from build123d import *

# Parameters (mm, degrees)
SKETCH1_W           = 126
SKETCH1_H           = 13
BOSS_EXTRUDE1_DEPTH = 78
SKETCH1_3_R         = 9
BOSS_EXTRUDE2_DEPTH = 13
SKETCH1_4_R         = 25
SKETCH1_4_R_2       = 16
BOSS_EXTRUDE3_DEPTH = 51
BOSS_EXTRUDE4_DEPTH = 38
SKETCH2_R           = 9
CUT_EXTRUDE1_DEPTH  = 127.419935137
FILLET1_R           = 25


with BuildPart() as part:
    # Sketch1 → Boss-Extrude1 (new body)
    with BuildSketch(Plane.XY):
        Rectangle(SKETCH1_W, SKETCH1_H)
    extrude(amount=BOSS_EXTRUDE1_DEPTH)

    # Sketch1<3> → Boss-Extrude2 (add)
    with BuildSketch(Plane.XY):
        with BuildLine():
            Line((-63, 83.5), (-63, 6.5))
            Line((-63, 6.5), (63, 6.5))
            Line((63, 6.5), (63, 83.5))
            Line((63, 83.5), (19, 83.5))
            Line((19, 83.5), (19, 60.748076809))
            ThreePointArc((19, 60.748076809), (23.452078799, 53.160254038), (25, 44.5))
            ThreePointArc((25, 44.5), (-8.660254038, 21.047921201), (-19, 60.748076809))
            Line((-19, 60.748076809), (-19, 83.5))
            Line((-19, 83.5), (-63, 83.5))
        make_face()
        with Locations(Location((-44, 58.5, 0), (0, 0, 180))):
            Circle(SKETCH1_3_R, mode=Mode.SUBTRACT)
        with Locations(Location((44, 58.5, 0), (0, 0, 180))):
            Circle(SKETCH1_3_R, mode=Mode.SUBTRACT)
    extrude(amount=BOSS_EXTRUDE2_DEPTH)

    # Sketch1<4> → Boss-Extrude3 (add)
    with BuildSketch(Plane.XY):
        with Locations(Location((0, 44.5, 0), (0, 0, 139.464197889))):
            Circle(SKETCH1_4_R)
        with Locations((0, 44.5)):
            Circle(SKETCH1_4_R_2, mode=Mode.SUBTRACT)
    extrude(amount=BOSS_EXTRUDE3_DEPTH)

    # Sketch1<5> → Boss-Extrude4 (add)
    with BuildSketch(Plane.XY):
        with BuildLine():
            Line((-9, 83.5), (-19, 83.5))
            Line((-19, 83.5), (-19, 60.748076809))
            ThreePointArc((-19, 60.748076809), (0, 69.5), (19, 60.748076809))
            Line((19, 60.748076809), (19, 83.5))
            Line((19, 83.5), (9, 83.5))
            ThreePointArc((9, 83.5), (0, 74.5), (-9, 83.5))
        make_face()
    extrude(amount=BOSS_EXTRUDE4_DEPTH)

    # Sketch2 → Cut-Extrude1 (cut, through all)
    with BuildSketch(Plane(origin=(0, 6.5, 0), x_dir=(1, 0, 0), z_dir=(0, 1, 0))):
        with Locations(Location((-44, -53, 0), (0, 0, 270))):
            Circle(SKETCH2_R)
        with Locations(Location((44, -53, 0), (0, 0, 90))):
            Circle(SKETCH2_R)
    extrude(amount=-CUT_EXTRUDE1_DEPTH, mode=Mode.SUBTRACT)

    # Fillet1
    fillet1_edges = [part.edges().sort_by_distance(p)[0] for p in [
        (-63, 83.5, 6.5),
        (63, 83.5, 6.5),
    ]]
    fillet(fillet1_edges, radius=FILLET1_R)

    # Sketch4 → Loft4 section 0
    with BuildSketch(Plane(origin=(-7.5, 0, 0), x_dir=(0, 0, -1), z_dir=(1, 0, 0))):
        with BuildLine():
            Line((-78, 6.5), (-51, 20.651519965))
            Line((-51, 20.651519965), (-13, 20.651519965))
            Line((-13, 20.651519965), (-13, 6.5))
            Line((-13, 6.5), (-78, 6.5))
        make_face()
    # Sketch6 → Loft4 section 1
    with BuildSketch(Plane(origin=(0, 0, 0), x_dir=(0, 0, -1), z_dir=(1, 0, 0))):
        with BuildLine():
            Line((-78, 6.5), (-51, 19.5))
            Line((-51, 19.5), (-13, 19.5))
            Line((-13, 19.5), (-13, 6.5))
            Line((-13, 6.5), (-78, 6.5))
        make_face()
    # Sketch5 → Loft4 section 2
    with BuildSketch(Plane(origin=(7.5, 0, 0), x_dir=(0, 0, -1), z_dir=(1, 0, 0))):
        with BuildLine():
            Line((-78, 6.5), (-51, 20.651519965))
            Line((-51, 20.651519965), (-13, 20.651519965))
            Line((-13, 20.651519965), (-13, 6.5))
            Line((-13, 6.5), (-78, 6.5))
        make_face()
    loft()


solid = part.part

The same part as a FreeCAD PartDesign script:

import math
import FreeCAD as App
import Part
import Sketcher
from FreeCAD import Vector
Q = App.Units.Quantity


def edges_at(feature, points):
    """Names of the edges that pass closest to the given points."""
    edges = feature.Shape.Edges
    near = lambda p: min(range(len(edges)), key=lambda i: edges[i].distToShape(Part.Vertex(*p))[0])
    return sorted({f"Edge{near(p) + 1}" for p in points})

doc = App.newDocument("Part")
body = doc.addObject("PartDesign::Body", "Body")

sketch1 = body.newObject("Sketcher::SketchObject", "Sketch")
sketch1.AttachmentSupport = (doc.getObject("XY_Plane"), [""])
sketch1.MapMode = "FlatFace"
sketch1.addGeometry([
    Part.LineSegment(Vector(-63, 6, 0), Vector(-63, -6, 0)),
    Part.LineSegment(Vector(-63, -6, 0), Vector(63, -6, 0)),
    Part.LineSegment(Vector(63, -6, 0), Vector(63, 6, 0)),
    Part.LineSegment(Vector(63, 6, 0), Vector(-63, 6, 0)),
], False)
sketch1.addConstraint([
    Sketcher.Constraint("Coincident", 0, 2, 1, 1),
    Sketcher.Constraint("Coincident", 1, 2, 2, 1),
    Sketcher.Constraint("Coincident", 2, 2, 3, 1),
    Sketcher.Constraint("Coincident", 3, 2, 0, 1),
    Sketcher.Constraint("Vertical", 0),
    Sketcher.Constraint("Horizontal", 1),
    Sketcher.Constraint("Vertical", 2),
    Sketcher.Constraint("Horizontal", 3),
    Sketcher.Constraint("Symmetric", 0, 2, 2, 2, -1, 1),
    Sketcher.Constraint("DistanceX", 1, 1, 1, 2, Q("126 mm")),
    Sketcher.Constraint("DistanceY", 0, 2, 0, 1, Q("13 mm")),
])
pad1 = body.newObject("PartDesign::Pad", "Pad")
pad1.Profile = sketch1
pad1.Length = 78

sketch2 = body.newObject("Sketcher::SketchObject", "Sketch001")
sketch2.AttachmentSupport = (doc.getObject("XY_Plane"), [""])
sketch2.MapMode = "FlatFace"
sketch2.addGeometry([
    Part.LineSegment(Vector(-63, 84, 0), Vector(-63, 6, 0)),
    Part.LineSegment(Vector(-63, 6, 0), Vector(63, 6, 0)),
    Part.LineSegment(Vector(63, 6, 0), Vector(63, 84, 0)),
    Part.LineSegment(Vector(63, 84, 0), Vector(19, 84, 0)),
    Part.LineSegment(Vector(19, 84, 0), Vector(19, 61, 0)),
    Part.ArcOfCircle(Part.Circle(Vector(0, 44, 0), Vector(0, 0, 1), 25), math.radians(139), math.radians(401)),
    Part.LineSegment(Vector(-19, 61, 0), Vector(-19, 84, 0)),
    Part.LineSegment(Vector(-19, 84, 0), Vector(-63, 84, 0)),
    Part.Circle(Vector(-44, 58, 0), Vector(0, 0, 1), 9),
    Part.Circle(Vector(44, 58, 0), Vector(0, 0, 1), 9),
], False)
sketch2.addConstraint([
    Sketcher.Constraint("Coincident", 0, 2, 1, 1),
    Sketcher.Constraint("Coincident", 1, 2, 2, 1),
    Sketcher.Constraint("Coincident", 2, 2, 3, 1),
    Sketcher.Constraint("Coincident", 3, 2, 4, 1),
    Sketcher.Constraint("Coincident", 4, 2, 5, 2),
    Sketcher.Constraint("Coincident", 5, 1, 6, 1),
    Sketcher.Constraint("Coincident", 6, 2, 7, 1),
    Sketcher.Constraint("Coincident", 7, 2, 0, 1),
    Sketcher.Constraint("Vertical", 0),
    Sketcher.Constraint("Horizontal", 1),
    Sketcher.Constraint("Vertical", 2),
    Sketcher.Constraint("Horizontal", 3),
    Sketcher.Constraint("Vertical", 4),
    Sketcher.Constraint("Vertical", 6),
    Sketcher.Constraint("Horizontal", 7),
    Sketcher.Constraint("Equal", 8, 9),
    Sketcher.Constraint("Symmetric", 8, 3, 9, 3, -2),
    Sketcher.Constraint("Symmetric", 4, 2, 5, 1, -2),
    Sketcher.Constraint("Symmetric", 2, 2, 7, 2, -2),
    Sketcher.Constraint("Diameter", 8, Q("18 mm")),
    Sketcher.Constraint("Radius", 5, Q("25 mm")),
    Sketcher.Constraint("DistanceX", 1, 1, 1, 2, Q("126 mm")),
    Sketcher.Constraint("DistanceX", 3, 2, 3, 1, Q("44 mm")),
    Sketcher.Constraint("DistanceY", 0, 2, 0, 1, Q("77 mm")),
    Sketcher.Constraint("DistanceX", 8, 3, -1, 1, Q("44 mm")),
    Sketcher.Constraint("DistanceY", 5, 3, 8, 3, Q("14 mm")),
    Sketcher.Constraint("DistanceY", 0, 2, 8, 3, Q("52 mm")),
    Sketcher.Constraint("DistanceY", -1, 1, 5, 3, Q("44.5 mm")),
])
pad2 = body.newObject("PartDesign::Pad", "Pad001")
pad2.Profile = sketch2
pad2.Length = 13

sketch3 = body.newObject("Sketcher::SketchObject", "Sketch002")
sketch3.AttachmentSupport = (doc.getObject("XY_Plane"), [""])
sketch3.MapMode = "FlatFace"
sketch3.addGeometry([
    Part.Circle(Vector(0, 44, 0), Vector(0, 0, 1), 25),
    Part.Circle(Vector(0, 44, 0), Vector(0, 0, 1), 16),
], False)
sketch3.addConstraint([
    Sketcher.Constraint("Coincident", 1, 3, 0, 3),
    Sketcher.Constraint("PointOnObject", 0, 3, -2),
    Sketcher.Constraint("Diameter", 0, Q("50 mm")),
    Sketcher.Constraint("Diameter", 1, Q("32 mm")),
    Sketcher.Constraint("DistanceY", -1, 1, 0, 3, Q("44.5 mm")),
])
pad3 = body.newObject("PartDesign::Pad", "Pad002")
pad3.Profile = sketch3
pad3.Length = 51

sketch4 = body.newObject("Sketcher::SketchObject", "Sketch003")
sketch4.AttachmentSupport = (doc.getObject("XY_Plane"), [""])
sketch4.MapMode = "FlatFace"
sketch4.addGeometry([
    Part.LineSegment(Vector(-9, 84, 0), Vector(-19, 84, 0)),
    Part.LineSegment(Vector(-19, 84, 0), Vector(-19, 61, 0)),
    Part.ArcOfCircle(Part.Circle(Vector(0, 45, 0), Vector(0, 0, 1), 25), math.radians(41), math.radians(139)),
    Part.LineSegment(Vector(19, 61, 0), Vector(19, 84, 0)),
    Part.LineSegment(Vector(19, 84, 0), Vector(9, 84, 0)),
    Part.ArcOfCircle(Part.Circle(Vector(0, 84, 0), Vector(0, 0, 1), 9), math.radians(180), math.radians(360)),
], False)
sketch4.addConstraint([
    Sketcher.Constraint("Coincident", 0, 2, 1, 1),
    Sketcher.Constraint("Coincident", 1, 2, 2, 2),
    Sketcher.Constraint("Coincident", 2, 1, 3, 1),
    Sketcher.Constraint("Coincident", 3, 2, 4, 1),
    Sketcher.Constraint("Coincident", 4, 2, 5, 2),
    Sketcher.Constraint("Coincident", 5, 1, 0, 1),
    Sketcher.Constraint("Horizontal", 0),
    Sketcher.Constraint("Vertical", 1),
    Sketcher.Constraint("Vertical", 3),
    Sketcher.Constraint("Horizontal", 4),
    Sketcher.Constraint("Symmetric", 1, 2, 2, 1, -2),
    Sketcher.Constraint("Symmetric", 4, 2, 5, 1, -2),
    Sketcher.Constraint("Horizontal", 5, 3, 0, 2),
    Sketcher.Constraint("Radius", 2, Q("25 mm")),
    Sketcher.Constraint("Radius", 5, Q("9 mm")),
    Sketcher.Constraint("DistanceX", 0, 2, 0, 1, Q("10 mm")),
    Sketcher.Constraint("DistanceY", 2, 3, 5, 3, Q("39 mm")),
    Sketcher.Constraint("DistanceY", -1, 1, 2, 3, Q("44.5 mm")),
])
pad4 = body.newObject("PartDesign::Pad", "Pad003")
pad4.Profile = sketch4
pad4.Length = 38

sketch5 = body.newObject("Sketcher::SketchObject", "Sketch004")
sketch5.AttachmentSupport = (doc.getObject("XZ_Plane"), [""])
sketch5.MapMode = "FlatFace"
sketch5.AttachmentOffset = App.Placement(Vector(0, 0, -6.5), App.Rotation())
sketch5.addGeometry([
    Part.Circle(Vector(-44, 53, 0), Vector(0, 0, 1), 9),
    Part.Circle(Vector(44, 53, 0), Vector(0, 0, 1), 9),
], False)
sketch5.addConstraint([
    Sketcher.Constraint("Equal", 0, 1),
    Sketcher.Constraint("Symmetric", 0, 3, 1, 3, -2),
    Sketcher.Constraint("Diameter", 0, Q("18 mm")),
    Sketcher.Constraint("DistanceX", 0, 3, -1, 1, Q("44 mm")),
    Sketcher.Constraint("DistanceY", -1, 1, 0, 3, Q("53 mm")),
])
pocket1 = body.newObject("PartDesign::Pocket", "Pocket")
pocket1.Profile = sketch5
pocket1.Type = "ThroughAll"
pocket1.Reversed = True
doc.recompute()

fillet = body.newObject("PartDesign::Fillet", "Fillet")
fillet.Base = (pocket1, edges_at(pocket1, [(-63, 83.5, 6.5), (63, 83.5, 6.5)]))
fillet.Radius = 25

sketch6 = body.newObject("Sketcher::SketchObject", "Sketch005")
sketch6.AttachmentSupport = (doc.getObject("YZ_Plane"), [""])
sketch6.MapMode = "FlatFace"
sketch6.AttachmentOffset = App.Placement(Vector(0, 0, -7.5), App.Rotation())
sketch6.addGeometry([
    Part.LineSegment(Vector(21, 51, 0), Vector(6, 78, 0)),
    Part.LineSegment(Vector(6, 78, 0), Vector(6, 13, 0)),
    Part.LineSegment(Vector(6, 13, 0), Vector(21, 13, 0)),
    Part.LineSegment(Vector(21, 13, 0), Vector(21, 51, 0)),
], False)
sketch6.addConstraint([
    Sketcher.Constraint("Coincident", 0, 2, 1, 1),
    Sketcher.Constraint("Coincident", 1, 2, 2, 1),
    Sketcher.Constraint("Coincident", 2, 2, 3, 1),
    Sketcher.Constraint("Coincident", 3, 2, 0, 1),
    Sketcher.Constraint("Vertical", 1),
    Sketcher.Constraint("Horizontal", 2),
    Sketcher.Constraint("Vertical", 3),
    Sketcher.Constraint("DistanceY", 1, 2, 1, 1, Q("65 mm")),
    Sketcher.Constraint("DistanceY", 3, 1, 3, 2, Q("38 mm")),
    Sketcher.Constraint("DistanceY", -1, 1, 0, 2, Q("78 mm")),
    Sketcher.Constraint("DistanceX", -1, 1, 0, 2, Q("6.5 mm")),
    Sketcher.Constraint("DistanceX", 2, 1, 2, 2, Q("14.15152 mm")),
])

sketch7 = body.newObject("Sketcher::SketchObject", "Sketch006")
sketch7.AttachmentSupport = (doc.getObject("YZ_Plane"), [""])
sketch7.MapMode = "FlatFace"
sketch7.addGeometry([
    Part.LineSegment(Vector(20, 51, 0), Vector(6, 78, 0)),
    Part.LineSegment(Vector(6, 78, 0), Vector(6, 13, 0)),
    Part.LineSegment(Vector(6, 13, 0), Vector(20, 13, 0)),
    Part.LineSegment(Vector(20, 13, 0), Vector(20, 51, 0)),
], False)
sketch7.addConstraint([
    Sketcher.Constraint("Coincident", 0, 2, 1, 1),
    Sketcher.Constraint("Coincident", 1, 2, 2, 1),
    Sketcher.Constraint("Coincident", 2, 2, 3, 1),
    Sketcher.Constraint("Coincident", 3, 2, 0, 1),
    Sketcher.Constraint("Vertical", 1),
    Sketcher.Constraint("Horizontal", 2),
    Sketcher.Constraint("Vertical", 3),
    Sketcher.Constraint("DistanceX", 2, 1, 2, 2, Q("13 mm")),
    Sketcher.Constraint("DistanceY", 1, 2, 1, 1, Q("65 mm")),
    Sketcher.Constraint("DistanceY", 3, 1, 3, 2, Q("38 mm")),
    Sketcher.Constraint("DistanceY", -1, 1, 0, 2, Q("78 mm")),
    Sketcher.Constraint("DistanceX", -1, 1, 0, 2, Q("6.5 mm")),
])

sketch8 = body.newObject("Sketcher::SketchObject", "Sketch007")
sketch8.AttachmentSupport = (doc.getObject("YZ_Plane"), [""])
sketch8.MapMode = "FlatFace"
sketch8.AttachmentOffset = App.Placement(Vector(0, 0, 7.5), App.Rotation())
sketch8.addGeometry([
    Part.LineSegment(Vector(21, 51, 0), Vector(6, 78, 0)),
    Part.LineSegment(Vector(6, 78, 0), Vector(6, 13, 0)),
    Part.LineSegment(Vector(6, 13, 0), Vector(21, 13, 0)),
    Part.LineSegment(Vector(21, 13, 0), Vector(21, 51, 0)),
], False)
sketch8.addConstraint([
    Sketcher.Constraint("Coincident", 0, 2, 1, 1),
    Sketcher.Constraint("Coincident", 1, 2, 2, 1),
    Sketcher.Constraint("Coincident", 2, 2, 3, 1),
    Sketcher.Constraint("Coincident", 3, 2, 0, 1),
    Sketcher.Constraint("Vertical", 1),
    Sketcher.Constraint("Horizontal", 2),
    Sketcher.Constraint("Vertical", 3),
    Sketcher.Constraint("DistanceY", 1, 2, 1, 1, Q("65 mm")),
    Sketcher.Constraint("DistanceY", 3, 1, 3, 2, Q("38 mm")),
    Sketcher.Constraint("DistanceY", -1, 1, 0, 2, Q("78 mm")),
    Sketcher.Constraint("DistanceX", -1, 1, 0, 2, Q("6.5 mm")),
    Sketcher.Constraint("DistanceX", 2, 1, 2, 2, Q("14.15152 mm")),
])

additiveloft = body.newObject("PartDesign::AdditiveLoft", "AdditiveLoft")
additiveloft.Profile = sketch6
additiveloft.Sections = [sketch7, sketch8]

doc.recompute()
